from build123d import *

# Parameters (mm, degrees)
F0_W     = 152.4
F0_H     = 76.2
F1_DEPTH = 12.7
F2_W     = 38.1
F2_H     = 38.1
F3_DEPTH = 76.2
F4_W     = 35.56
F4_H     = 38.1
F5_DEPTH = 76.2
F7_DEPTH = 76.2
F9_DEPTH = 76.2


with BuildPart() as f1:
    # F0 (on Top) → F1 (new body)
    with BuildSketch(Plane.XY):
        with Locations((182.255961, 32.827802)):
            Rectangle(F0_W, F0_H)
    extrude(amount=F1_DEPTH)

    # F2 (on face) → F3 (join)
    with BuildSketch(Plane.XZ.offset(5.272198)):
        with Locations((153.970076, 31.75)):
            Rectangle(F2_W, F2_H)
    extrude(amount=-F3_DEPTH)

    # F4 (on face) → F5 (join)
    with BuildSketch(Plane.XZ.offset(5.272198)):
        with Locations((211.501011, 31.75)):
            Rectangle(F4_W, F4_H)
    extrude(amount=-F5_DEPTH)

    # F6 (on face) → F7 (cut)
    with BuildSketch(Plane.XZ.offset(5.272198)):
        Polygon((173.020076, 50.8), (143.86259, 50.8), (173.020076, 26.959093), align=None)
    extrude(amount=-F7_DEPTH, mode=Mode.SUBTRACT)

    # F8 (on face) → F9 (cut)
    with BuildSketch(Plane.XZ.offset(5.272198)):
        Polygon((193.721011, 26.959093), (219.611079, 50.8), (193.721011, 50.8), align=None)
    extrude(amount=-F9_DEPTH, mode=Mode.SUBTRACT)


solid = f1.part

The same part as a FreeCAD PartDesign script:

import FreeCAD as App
import Part
import Sketcher
Q = App.Units.Quantity

doc = App.newDocument("Part")
params = doc.addObject("Spreadsheet::Sheet", "Params")
for row, (alias, value) in enumerate([
    ("sketch1_width", "6 in"),
    ("sketch1_height", "3 in"),
    ("pad1_length", "0.5 in"),
    ("sketch2_width", "1.5 in"),
    ("pad2_length", "3 in"),
    ("sketch3_width", "1.4 in"),
    ("sketch3_height", "1.5 in"),
    ("pad3_length", "3 in"),
    ("pocket1_length", "3 in"),
    ("pocket2_length", "3 in"),
], start=1):
    params.set(f"A{row}", alias)
    params.set(f"B{row}", "=" + value)
    params.setAlias(f"B{row}", alias)

body = doc.addObject("PartDesign::Body", "Body")

# Sketch on XY plane
sketch1 = body.newObject("Sketcher::SketchObject", "Sketch")
sketch1.AttachmentSupport = (doc.getObject("XY_Plane"), [""])
sketch1.MapMode = "FlatFace"
sketch1.addGeometry([
    Part.LineSegment(App.Vector(106.055961, 70.927802, 0), App.Vector(106.055961, -5.272198, 0)),
    Part.LineSegment(App.Vector(106.055961, -5.272198, 0), App.Vector(258.455961, -5.272198, 0)),
    Part.LineSegment(App.Vector(258.455961, -5.272198, 0), App.Vector(258.455961, 70.927802, 0)),
    Part.LineSegment(App.Vector(258.455961, 70.927802, 0), App.Vector(106.055961, 70.927802, 0)),
], False)
sketch1.addConstraint([
    Sketcher.Constraint("Coincident", 0, 2, 1, 1),
    Sketcher.Constraint("Coincident", 1, 2, 2, 1),
    Sketcher.Constraint("Coincident", 2, 2, 3, 1),
    Sketcher.Constraint("Coincident", 3, 2, 0, 1),
    Sketcher.Constraint("Vertical", 0),
    Sketcher.Constraint("Horizontal", 1),
    Sketcher.Constraint("Vertical", 2),
    Sketcher.Constraint("Horizontal", 3),
    Sketcher.Constraint("DistanceX", 1, 1, 1, 2, Q("6 in")),
    Sketcher.Constraint("DistanceY", 0, 2, 0, 1, Q("3 in")),
    Sketcher.Constraint("DistanceY", 0, 2, -1, 1, Q("5.272198 mm")),
    Sketcher.Constraint("DistanceX", -1, 1, 0, 2, Q("106.055961 mm")),
])
sketch1.setExpression("Constraints[8]", "Params.sketch1_width")
sketch1.setExpression("Constraints[9]", "Params.sketch1_height")
pad1 = body.newObject("PartDesign::Pad", "Pad")
pad1.Profile = sketch1
pad1.setExpression("Length", "Params.pad1_length")

# Sketch on XZ plane
sketch2 = body.newObject("Sketcher::SketchObject", "Sketch001")
sketch2.AttachmentSupport = (doc.getObject("XZ_Plane"), [""])
sketch2.MapMode = "FlatFace"
sketch2.AttachmentOffset = App.Placement(App.Vector(0, 0, 5.272198), App.Rotation())
sketch2.addGeometry([
    Part.LineSegment(App.Vector(134.920076, 50.8, 0), App.Vector(134.920076, 12.7, 0)),
    Part.LineSegment(App.Vector(134.920076, 12.7, 0), App.Vector(173.020076, 12.7, 0)),
    Part.LineSegment(App.Vector(173.020076, 12.7, 0), App.Vector(173.020076, 50.8, 0)),
    Part.LineSegment(App.Vector(173.020076, 50.8, 0), App.Vector(134.920076, 50.8, 0)),
], False)
sketch2.addConstraint([
    Sketcher.Constraint("Coincident", 0, 2, 1, 1),
    Sketcher.Constraint("Coincident", 1, 2, 2, 1),
    Sketcher.Constraint("Coincident", 2, 2, 3, 1),
    Sketcher.Constraint("Coincident", 3, 2, 0, 1),
    Sketcher.Constraint("Vertical", 0),
    Sketcher.Constraint("Horizontal", 1),
    Sketcher.Constraint("Vertical", 2),
    Sketcher.Constraint("Horizontal", 3),
    Sketcher.Constraint("Equal", 3, 0),
    Sketcher.Constraint("DistanceX", 1, 1, 1, 2, Q("1.5 in")),
    Sketcher.Constraint("DistanceY", -1, 1, 2, 2, Q("2 in")),
    Sketcher.Constraint("DistanceX", -1, 1, 0, 2, Q("134.920076 mm")),
])
sketch2.setExpression("Constraints[9]", "Params.sketch2_width")
pad2 = body.newObject("PartDesign::Pad", "Pad001")
pad2.Profile = sketch2
pad2.setExpression("Length", "Params.pad2_length")
pad2.Reversed = True

# Sketch on XZ plane
sketch3 = body.newObject("Sketcher::SketchObject", "Sketch002")
sketch3.AttachmentSupport = (doc.getObject("XZ_Plane"), [""])
sketch3.MapMode = "FlatFace"
sketch3.AttachmentOffset = App.Placement(App.Vector(0, 0, 5.272198), App.Rotation())
sketch3.addGeometry([
    Part.LineSegment(App.Vector(193.721011, 50.8, 0), App.Vector(193.721011, 12.7, 0)),
    Part.LineSegment(App.Vector(193.721011, 12.7, 0), App.Vector(229.281011, 12.7, 0)),
    Part.LineSegment(App.Vector(229.281011, 12.7, 0), App.Vector(229.281011, 50.8, 0)),
    Part.LineSegment(App.Vector(229.281011, 50.8, 0), App.Vector(193.721011, 50.8, 0)),
], False)
sketch3.addConstraint([
    Sketcher.Constraint("Coincident", 0, 2, 1, 1),
    Sketcher.Constraint("Coincident", 1, 2, 2, 1),
    Sketcher.Constraint("Coincident", 2, 2, 3, 1),
    Sketcher.Constraint("Coincident", 3, 2, 0, 1),
    Sketcher.Constraint("Vertical", 0),
    Sketcher.Constraint("Horizontal", 1),
    Sketcher.Constraint("Vertical", 2),
    Sketcher.Constraint("Horizontal", 3),
    Sketcher.Constraint("DistanceX", 1, 1, 1, 2, Q("1.4 in")),
    Sketcher.Constraint("DistanceY", 0, 2, 0, 1, Q("1.5 in")),
    Sketcher.Constraint("DistanceY", -1, 1, 2, 2, Q("2 in")),
    Sketcher.Constraint("DistanceX", -1, 1, 0, 2, Q("193.721011 mm")),
])
sketch3.setExpression("Constraints[8]", "Params.sketch3_width")
sketch3.setExpression("Constraints[9]", "Params.sketch3_height")
pad3 = body.newObject("PartDesign::Pad", "Pad002")
pad3.Profile = sketch3
pad3.setExpression("Length", "Params.pad3_length")
pad3.Reversed = True

# Sketch on XZ plane
sketch4 = body.newObject("Sketcher::SketchObject", "Sketch003")
sketch4.AttachmentSupport = (doc.getObject("XZ_Plane"), [""])
sketch4.MapMode = "FlatFace"
sketch4.AttachmentOffset = App.Placement(App.Vector(0, 0, 5.272198), App.Rotation())
sketch4.addGeometry([
    Part.LineSegment(App.Vector(173.020076, 50.8, 0), App.Vector(143.86259, 50.8, 0)),
    Part.LineSegment(App.Vector(143.86259, 50.8, 0), App.Vector(173.020076, 26.959093, 0)),
    Part.LineSegment(App.Vector(173.020076, 26.959093, 0), App.Vector(173.020076, 50.8, 0)),
], False)
sketch4.addConstraint([
    Sketcher.Constraint("Coincident", 0, 2, 1, 1),
    Sketcher.Constraint("Coincident", 1, 2, 2, 1),
    Sketcher.Constraint("Coincident", 2, 2, 0, 1),
    Sketcher.Constraint("Horizontal", 0),
    Sketcher.Constraint("Vertical", 2),
    Sketcher.Constraint("DistanceY", -1, 1, 0, 2, Q("2 in")),
    Sketcher.Constraint("DistanceX", 0, 2, 0, 1, Q("29.157486 mm")),
    Sketcher.Constraint("DistanceY", 2, 1, 2, 2, Q("23.840907 mm")),
    Sketcher.Constraint("DistanceX", -1, 1, 0, 2, Q("143.86259 mm")),
])
pocket1 = body.newObject("PartDesign::Pocket", "Pocket")
pocket1.Profile = sketch4
pocket1.setExpression("Length", "Params.pocket1_length")

# Sketch on XZ plane
sketch5 = body.newObject("Sketcher::SketchObject", "Sketch004")
sketch5.AttachmentSupport = (doc.getObject("XZ_Plane"), [""])
sketch5.MapMode = "FlatFace"
sketch5.AttachmentOffset = App.Placement(App.Vector(0, 0, 5.272198), App.Rotation())
sketch5.addGeometry([
    Part.LineSegment(App.Vector(193.721011, 26.959093, 0), App.Vector(219.611079, 50.8, 0)),
    Part.LineSegment(App.Vector(219.611079, 50.8, 0), App.Vector(193.721011, 50.8, 0)),
    Part.LineSegment(App.Vector(193.721011, 50.8, 0), App.Vector(193.721011, 26.959093, 0)),
], False)
sketch5.addConstraint([
    Sketcher.Constraint("Coincident", 0, 2, 1, 1),
    Sketcher.Constraint("Coincident", 1, 2, 2, 1),
    Sketcher.Constraint("Coincident", 2, 2, 0, 1),
    Sketcher.Constraint("Horizontal", 1),
    Sketcher.Constraint("Vertical", 2),
    Sketcher.Constraint("DistanceY", -1, 1, 0, 2, Q("2 in")),
    Sketcher.Constraint("Distance", 0, Q("35.194949 mm")),
    Sketcher.Constraint("DistanceX", 1, 2, 1, 1, Q("25.890068 mm")),
    Sketcher.Constraint("DistanceX", -1, 1, 0, 2, Q("219.611079 mm")),
])
pocket2 = body.newObject("PartDesign::Pocket", "Pocket001")
pocket2.Profile = sketch5
pocket2.setExpression("Length", "Params.pocket2_length")

doc.recompute()
